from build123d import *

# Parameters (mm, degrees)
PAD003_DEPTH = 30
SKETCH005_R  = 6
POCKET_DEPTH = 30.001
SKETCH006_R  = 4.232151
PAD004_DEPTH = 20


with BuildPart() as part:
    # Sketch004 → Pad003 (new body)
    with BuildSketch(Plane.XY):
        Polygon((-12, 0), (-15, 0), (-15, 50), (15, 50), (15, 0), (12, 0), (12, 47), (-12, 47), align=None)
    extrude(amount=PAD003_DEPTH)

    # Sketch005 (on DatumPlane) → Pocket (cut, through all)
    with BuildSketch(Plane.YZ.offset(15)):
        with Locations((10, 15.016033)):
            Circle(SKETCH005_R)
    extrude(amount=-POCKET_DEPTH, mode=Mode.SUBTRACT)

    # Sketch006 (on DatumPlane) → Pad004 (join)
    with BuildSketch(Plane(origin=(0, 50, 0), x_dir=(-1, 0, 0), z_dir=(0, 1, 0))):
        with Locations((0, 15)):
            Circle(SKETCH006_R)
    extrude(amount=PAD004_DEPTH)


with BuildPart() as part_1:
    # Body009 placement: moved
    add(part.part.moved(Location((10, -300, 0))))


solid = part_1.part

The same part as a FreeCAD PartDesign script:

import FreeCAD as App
import Part
import Sketcher
from FreeCAD import Vector
Q = App.Units.Quantity

doc = App.newDocument("Part")
body = doc.addObject("PartDesign::Body", "Body")

# Sketch on XY plane
sketch1 = body.newObject("Sketcher::SketchObject", "Sketch")
sketch1.AttachmentSupport = (doc.getObject("XY_Plane"), [""])
sketch1.MapMode = "FlatFace"
sketch1.addGeometry([
    Part.LineSegment(Vector(-15, 0, 0), Vector(-12, 0, 0)),  # 0
    Part.LineSegment(Vector(-12, 0, 0), Vector(-12, 47, 0)),  # 1
    Part.LineSegment(Vector(-12, 47, 0), Vector(12, 47, 0)),  # 2
    Part.LineSegment(Vector(12, 47, 0), Vector(12, 0, 0)),  # 3
    Part.LineSegment(Vector(12, 0, 0), Vector(15, 0, 0)),  # 4
    Part.LineSegment(Vector(15, 0, 0), Vector(15, 50, 0)),  # 5
    Part.LineSegment(Vector(15, 50, 0), Vector(-15, 50, 0)),  # 6
    Part.LineSegment(Vector(-15, 50, 0), Vector(-15, 0, 0)),  # 7
], False)
sketch1.addConstraint([
    Sketcher.Constraint("Coincident", 0, 2, 1, 1),
    Sketcher.Constraint("Coincident", 1, 2, 2, 1),
    Sketcher.Constraint("Coincident", 2, 2, 3, 1),
    Sketcher.Constraint("Coincident", 3, 2, 4, 1),
    Sketcher.Constraint("Coincident", 4, 2, 5, 1),
    Sketcher.Constraint("Coincident", 5, 2, 6, 1),
    Sketcher.Constraint("Coincident", 6, 2, 7, 1),
    Sketcher.Constraint("Coincident", 7, 2, 0, 1),
    Sketcher.Constraint("Horizontal", 0),
    Sketcher.Constraint("Vertical", 1),
    Sketcher.Constraint("Horizontal", 2),
    Sketcher.Constraint("Vertical", 3),
    Sketcher.Constraint("Horizontal", 4),
    Sketcher.Constraint("Vertical", 5),
    Sketcher.Constraint("Horizontal", 6),
    Sketcher.Constraint("Vertical", 7),
    Sketcher.Constraint("Symmetric", 0, 2, 3, 2, -1, 1),
    Sketcher.Constraint("Symmetric", 4, 2, 7, 2, -2),
    Sketcher.Constraint("DistanceX", 0, 1, 0, 2, Q("3 mm")),
    Sketcher.Constraint("DistanceX", 2, 1, 2, 2, Q("24 mm")),
    Sketcher.Constraint("DistanceY", 1, 1, 1, 2, Q("47 mm")),
    Sketcher.Constraint("DistanceY", 5, 1, 5, 2, Q("50 mm")),
])
pad1 = body.newObject("PartDesign::Pad", "Pad")
pad1.Profile = sketch1
pad1.Length = 30

# Sketch on YZ plane
sketch2 = body.newObject("Sketcher::SketchObject", "Sketch001")
sketch2.AttachmentSupport = (doc.getObject("YZ_Plane"), [""])
sketch2.MapMode = "FlatFace"
sketch2.AttachmentOffset = App.Placement(Vector(0, 0, 15), App.Rotation())
sketch2.addGeometry(Part.Circle(Vector(10, 15, 0), Vector(0, 0, 1), 6), False)
sketch2.addConstraint([
    Sketcher.Constraint("Diameter", 0, Q("12 mm")),
    Sketcher.Constraint("DistanceX", -1, 1, 0, 3, Q("10 mm")),
    Sketcher.Constraint("DistanceY", -1, 1, 0, 3, Q("15.016033 mm")),
])
pocket1 = body.newObject("PartDesign::Pocket", "Pocket")
pocket1.Profile = sketch2
pocket1.Type = "ThroughAll"

# Sketch on XZ plane
sketch3 = body.newObject("Sketcher::SketchObject", "Sketch002")
sketch3.AttachmentSupport = (doc.getObject("XZ_Plane"), [""])
sketch3.MapMode = "FlatFace"
sketch3.AttachmentOffset = App.Placement(Vector(0, 0, -50), App.Rotation())
sketch3.addGeometry(Part.Circle(Vector(0, 15, 0), Vector(0, 0, 1), 4.2), False)
sketch3.addConstraint([
    Sketcher.Constraint("PointOnObject", 0, 3, -2),
    Sketcher.Constraint("DistanceY", -1, 1, 0, 3, Q("15 mm")),
    Sketcher.Constraint("Diameter", 0, Q("8.464302 mm")),
])
pad2 = body.newObject("PartDesign::Pad", "Pad001")
pad2.Profile = sketch3
pad2.Length = 20
pad2.Reversed = True
body2 = doc.addObject("PartDesign::Body", "Body001")
doc.recompute()

body.Placement = App.Placement(Vector(10, -300, 0), App.Rotation(Vector(0, 0, 1), 0))
boolean = body2.newObject("PartDesign::Boolean", "Boolean")
boolean.Type = "Fuse"
boolean.addObjects([body])

doc.recompute()
